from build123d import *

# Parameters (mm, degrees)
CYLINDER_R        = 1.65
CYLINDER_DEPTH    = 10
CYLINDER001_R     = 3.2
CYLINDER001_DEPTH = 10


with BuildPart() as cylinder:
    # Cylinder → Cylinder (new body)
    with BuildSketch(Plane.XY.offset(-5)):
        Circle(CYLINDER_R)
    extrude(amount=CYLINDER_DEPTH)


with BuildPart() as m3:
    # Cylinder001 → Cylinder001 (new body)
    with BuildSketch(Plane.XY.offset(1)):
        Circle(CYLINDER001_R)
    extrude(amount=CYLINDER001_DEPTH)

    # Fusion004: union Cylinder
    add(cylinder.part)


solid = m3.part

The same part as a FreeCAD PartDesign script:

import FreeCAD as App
import Part
import Sketcher

V = App.Vector

doc = App.newDocument("Part")
body = doc.addObject("PartDesign::Body", "Body")

# Sketch on XY plane
sketch1 = body.newObject("Sketcher::SketchObject", "Sketch")
sketch1.AttachmentSupport = (doc.getObject("XY_Plane"), [""])
sketch1.MapMode = "FlatFace"
sketch1.AttachmentOffset = App.Placement(V(0, 0, -5), App.Rotation())
sketch1.addGeometry(Part.Circle(V(0, 0, 0), V(0, 0, 1), 1.65), False)
sketch1.addConstraint([
    Sketcher.Constraint("Coincident", 0, 3, -1, 1),
    Sketcher.Constraint("Diameter", 0, 3.3),
])
pad1 = body.newObject("PartDesign::Pad", "Pad")
pad1.Profile = sketch1
pad1.Length = 10
body2 = doc.addObject("PartDesign::Body", "Body001")

# Sketch on XY plane
sketch2 = body2.newObject("Sketcher::SketchObject", "Sketch001")
sketch2.AttachmentSupport = (doc.getObject("XY_Plane001"), [""])
sketch2.MapMode = "FlatFace"
sketch2.AttachmentOffset = App.Placement(V(0, 0, 1), App.Rotation())
sketch2.addGeometry(Part.Circle(V(0, 0, 0), V(0, 0, 1), 3.2), False)
sketch2.addConstraint([
    Sketcher.Constraint("Coincident", 0, 3, -1, 1),
    Sketcher.Constraint("Diameter", 0, 6.4),
])
pad2 = body2.newObject("PartDesign::Pad", "Pad001")
pad2.Profile = sketch2
pad2.Length = 10
doc.recompute()

boolean = body2.newObject("PartDesign::Boolean", "Boolean")
boolean.Type = "Fuse"
boolean.addObjects([body])

doc.recompute()
